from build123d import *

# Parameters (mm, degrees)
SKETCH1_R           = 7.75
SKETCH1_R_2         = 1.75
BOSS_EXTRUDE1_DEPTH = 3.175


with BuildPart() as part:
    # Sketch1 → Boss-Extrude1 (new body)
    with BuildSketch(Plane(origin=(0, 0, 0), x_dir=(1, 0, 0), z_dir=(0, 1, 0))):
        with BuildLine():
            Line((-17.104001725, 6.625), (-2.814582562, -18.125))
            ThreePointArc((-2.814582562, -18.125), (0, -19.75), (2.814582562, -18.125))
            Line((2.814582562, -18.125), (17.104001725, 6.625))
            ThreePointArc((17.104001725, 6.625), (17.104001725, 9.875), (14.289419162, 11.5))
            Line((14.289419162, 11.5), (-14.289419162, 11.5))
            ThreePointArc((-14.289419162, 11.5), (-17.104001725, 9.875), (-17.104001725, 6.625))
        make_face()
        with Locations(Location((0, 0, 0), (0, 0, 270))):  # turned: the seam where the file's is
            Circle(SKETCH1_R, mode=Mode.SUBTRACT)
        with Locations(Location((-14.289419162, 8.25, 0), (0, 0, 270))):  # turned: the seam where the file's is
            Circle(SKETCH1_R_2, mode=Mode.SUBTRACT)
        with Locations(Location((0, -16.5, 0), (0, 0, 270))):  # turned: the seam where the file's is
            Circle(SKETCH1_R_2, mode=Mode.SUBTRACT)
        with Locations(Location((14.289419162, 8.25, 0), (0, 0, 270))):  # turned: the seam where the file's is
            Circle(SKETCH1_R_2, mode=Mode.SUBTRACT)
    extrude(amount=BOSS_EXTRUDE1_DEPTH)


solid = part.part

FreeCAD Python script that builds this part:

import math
import FreeCAD as App
import Part
import Sketcher
Q = App.Units.Quantity

doc = App.newDocument("Part")
body = doc.addObject("PartDesign::Body", "Body")

sketch1 = doc.addObject("Sketcher::SketchObject", "Sketch")
body.addObject(sketch1)
sketch1.AttachmentSupport = (doc.XZ_Plane, [""])
sketch1.MapMode = "FlatFace"
sketch1.addGeometry(Part.LineSegment(App.Vector(-17.104002, -6.625, 0), App.Vector(-2.814583, 18.125, 0)), False)
sketch1.addGeometry(Part.ArcOfCircle(Part.Circle(App.Vector(0, 16.5, 0), App.Vector(0, 0, 1), 3.25), math.radians(30), math.radians(150)), False)
sketch1.addGeometry(Part.LineSegment(App.Vector(2.814583, 18.125, 0), App.Vector(17.104002, -6.625, 0)), False)
sketch1.addGeometry(Part.ArcOfCircle(Part.Circle(App.Vector(14.289419, -8.25, 0), App.Vector(0, 0, 1), 3.25), math.radians(-90), math.radians(30)), False)
sketch1.addGeometry(Part.LineSegment(App.Vector(14.289419, -11.5, 0), App.Vector(-14.289419, -11.5, 0)), False)
sketch1.addGeometry(Part.ArcOfCircle(Part.Circle(App.Vector(-14.289419, -8.25, 0), App.Vector(0, 0, 1), 3.25), math.radians(150), math.radians(270)), False)
sketch1.addGeometry(Part.Circle(App.Vector(0, 16.5, 0), App.Vector(0, 0, 1), 1.75), False)
sketch1.addGeometry(Part.Circle(App.Vector(-14.289419, -8.25, 0), App.Vector(0, 0, 1), 1.75), False)
sketch1.addGeometry(Part.Circle(App.Vector(0, 0, 0), App.Vector(0, 0, 1), 7.75), False)
sketch1.addGeometry(Part.Circle(App.Vector(14.289419, -8.25, 0), App.Vector(0, 0, 1), 1.75), False)
sketch1.addConstraint(Sketcher.Constraint("Tangent", 0, 2, 1, 2))
sketch1.addConstraint(Sketcher.Constraint("Tangent", 1, 1, 2, 1))
sketch1.addConstraint(Sketcher.Constraint("Tangent", 2, 2, 3, 2))
sketch1.addConstraint(Sketcher.Constraint("Tangent", 3, 1, 4, 1))
sketch1.addConstraint(Sketcher.Constraint("Tangent", 4, 2, 5, 2))
sketch1.addConstraint(Sketcher.Constraint("Tangent", 5, 1, 0, 1))
sketch1.addConstraint(Sketcher.Constraint("Horizontal", 4))
sketch1.addConstraint(Sketcher.Constraint("Coincident", 8, 3, -1, 1))
sketch1.addConstraint(Sketcher.Constraint("Coincident", 6, 3, 1, 3))
sketch1.addConstraint(Sketcher.Constraint("Coincident", 7, 3, 5, 3))
sketch1.addConstraint(Sketcher.Constraint("Coincident", 9, 3, 3, 3))
sketch1.addConstraint(Sketcher.Constraint("Equal", 1, 3))
sketch1.addConstraint(Sketcher.Constraint("Equal", 3, 5))
sketch1.addConstraint(Sketcher.Constraint("Equal", 6, 7))
sketch1.addConstraint(Sketcher.Constraint("Equal", 7, 9))
sketch1.addConstraint(Sketcher.Constraint("Symmetric", 0, 2, 1, 1, -2))
sketch1.addConstraint(Sketcher.Constraint("Diameter", 6, 3.5))
sketch1.addConstraint(Sketcher.Constraint("Diameter", 8, 15.5))
sketch1.addConstraint(Sketcher.Constraint("Angle", 0, Q("60 deg")))
sketch1.addConstraint(Sketcher.Constraint("Radius", 1, 3.25))
sketch1.addConstraint(Sketcher.Constraint("DistanceY", -1, 1, 1, 3, 16.5))
sketch1.addConstraint(Sketcher.Constraint("DistanceY", 3, 1, -1, 1, 11.5))
pad1 = doc.addObject("PartDesign::Pad", "Pad")
body.addObject(pad1)
pad1.Profile = sketch1
pad1.Length = 3.175
pad1.Reversed = True

doc.recompute()
